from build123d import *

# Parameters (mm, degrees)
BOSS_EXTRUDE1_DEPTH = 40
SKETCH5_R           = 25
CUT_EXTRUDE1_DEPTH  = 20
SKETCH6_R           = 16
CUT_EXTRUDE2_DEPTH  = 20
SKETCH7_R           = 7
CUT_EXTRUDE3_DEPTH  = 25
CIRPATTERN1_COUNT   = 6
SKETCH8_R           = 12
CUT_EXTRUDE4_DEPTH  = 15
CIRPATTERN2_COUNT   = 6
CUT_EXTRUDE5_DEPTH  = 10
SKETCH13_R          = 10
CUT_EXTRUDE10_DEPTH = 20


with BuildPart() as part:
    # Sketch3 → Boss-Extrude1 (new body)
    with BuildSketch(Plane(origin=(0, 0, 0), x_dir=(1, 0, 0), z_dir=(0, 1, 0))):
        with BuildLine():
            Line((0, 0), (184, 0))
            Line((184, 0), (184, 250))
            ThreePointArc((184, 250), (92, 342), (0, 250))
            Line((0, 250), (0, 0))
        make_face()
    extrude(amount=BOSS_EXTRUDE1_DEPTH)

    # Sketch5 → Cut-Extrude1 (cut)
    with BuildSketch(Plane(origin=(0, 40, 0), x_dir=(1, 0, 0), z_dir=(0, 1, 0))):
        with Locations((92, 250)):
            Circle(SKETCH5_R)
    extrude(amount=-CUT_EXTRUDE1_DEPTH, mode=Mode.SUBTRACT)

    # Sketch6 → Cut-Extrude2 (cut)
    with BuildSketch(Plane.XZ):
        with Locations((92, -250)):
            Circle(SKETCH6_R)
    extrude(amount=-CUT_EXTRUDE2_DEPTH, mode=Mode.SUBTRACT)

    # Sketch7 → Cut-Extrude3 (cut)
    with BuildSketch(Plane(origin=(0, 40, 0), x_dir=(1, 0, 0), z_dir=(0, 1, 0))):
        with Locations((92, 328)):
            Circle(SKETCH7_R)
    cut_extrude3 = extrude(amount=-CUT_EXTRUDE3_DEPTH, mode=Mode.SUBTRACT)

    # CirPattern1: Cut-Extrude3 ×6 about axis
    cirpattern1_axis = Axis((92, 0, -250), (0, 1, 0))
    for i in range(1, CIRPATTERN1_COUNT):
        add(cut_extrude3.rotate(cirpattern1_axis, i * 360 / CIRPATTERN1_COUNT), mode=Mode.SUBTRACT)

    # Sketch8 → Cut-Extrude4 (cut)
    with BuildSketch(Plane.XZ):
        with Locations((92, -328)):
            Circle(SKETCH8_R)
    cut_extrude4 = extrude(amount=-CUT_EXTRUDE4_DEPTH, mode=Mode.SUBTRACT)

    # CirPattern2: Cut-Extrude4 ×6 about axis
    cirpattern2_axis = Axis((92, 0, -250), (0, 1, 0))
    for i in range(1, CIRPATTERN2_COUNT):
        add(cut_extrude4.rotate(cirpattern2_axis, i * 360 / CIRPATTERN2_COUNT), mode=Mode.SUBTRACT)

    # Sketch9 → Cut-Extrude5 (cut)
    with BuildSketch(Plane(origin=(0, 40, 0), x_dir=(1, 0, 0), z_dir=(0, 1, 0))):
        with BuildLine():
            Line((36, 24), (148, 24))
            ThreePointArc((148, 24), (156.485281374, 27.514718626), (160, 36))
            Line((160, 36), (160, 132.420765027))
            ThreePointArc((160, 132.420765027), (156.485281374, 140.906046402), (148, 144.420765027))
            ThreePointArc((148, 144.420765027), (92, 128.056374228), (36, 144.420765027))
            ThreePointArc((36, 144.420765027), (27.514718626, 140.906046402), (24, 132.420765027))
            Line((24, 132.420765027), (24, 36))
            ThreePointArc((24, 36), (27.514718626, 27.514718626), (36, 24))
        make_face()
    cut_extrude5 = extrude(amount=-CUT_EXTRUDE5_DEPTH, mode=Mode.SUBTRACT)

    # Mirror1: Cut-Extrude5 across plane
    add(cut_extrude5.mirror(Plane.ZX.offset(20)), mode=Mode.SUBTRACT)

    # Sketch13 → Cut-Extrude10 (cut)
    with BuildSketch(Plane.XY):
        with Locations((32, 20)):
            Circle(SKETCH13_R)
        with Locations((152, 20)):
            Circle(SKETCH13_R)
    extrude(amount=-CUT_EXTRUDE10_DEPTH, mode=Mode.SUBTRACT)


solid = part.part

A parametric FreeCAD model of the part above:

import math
import FreeCAD as App
import Part
import Sketcher
from FreeCAD import Vector
Q = App.Units.Quantity

doc = App.newDocument("Part")
body = doc.addObject("PartDesign::Body", "Body")

sketch1 = body.newObject("Sketcher::SketchObject", "Sketch")
sketch1.AttachmentSupport = (doc.getObject("XZ_Plane"), [""])
sketch1.MapMode = "FlatFace"
sketch1.addGeometry([
    Part.LineSegment(Vector(0, 0, 0), Vector(184, 0, 0)),
    Part.LineSegment(Vector(184, 0, 0), Vector(184, -250, 0)),
    Part.ArcOfCircle(Part.Circle(Vector(92, -250, 0), Vector(0, 0, 1), 92), math.radians(180), math.radians(360)),
    Part.LineSegment(Vector(0, -250, 0), Vector(0, 0, 0)),
], False)
sketch1.addConstraint([
    Sketcher.Constraint("Coincident", 0, 2, 1, 1),
    Sketcher.Constraint("Tangent", 1, 2, 2, 2),
    Sketcher.Constraint("Tangent", 2, 1, 3, 1),
    Sketcher.Constraint("Coincident", 3, 2, 0, 1),
    Sketcher.Constraint("Horizontal", 0),
    Sketcher.Constraint("Vertical", 1),
    Sketcher.Constraint("Vertical", 3),
    Sketcher.Constraint("Coincident", 3, 2, -1, 1),
    Sketcher.Constraint("Radius", 2, Q("92 mm")),
    Sketcher.Constraint("DistanceY", 1, 2, 1, 1, Q("250 mm")),
])
pad1 = body.newObject("PartDesign::Pad", "Pad")
pad1.Profile = sketch1
pad1.Length = 40
pad1.Reversed = True

sketch2 = body.newObject("Sketcher::SketchObject", "Sketch001")
sketch2.AttachmentSupport = (doc.getObject("XZ_Plane"), [""])
sketch2.MapMode = "FlatFace"
sketch2.AttachmentOffset = App.Placement(Vector(0, 0, -40), App.Rotation())
sketch2.addGeometry(Part.Circle(Vector(92, -250, 0), Vector(0, 0, 1), 25), False)
sketch2.addConstraint([
    Sketcher.Constraint("Diameter", 0, Q("50 mm")),
    Sketcher.Constraint("DistanceX", -1, 1, 0, 3, Q("92 mm")),
    Sketcher.Constraint("DistanceY", 0, 3, -1, 1, Q("250 mm")),
])
pocket1 = body.newObject("PartDesign::Pocket", "Pocket")
pocket1.Profile = sketch2
pocket1.Length = 20
pocket1.Reversed = True

sketch3 = body.newObject("Sketcher::SketchObject", "Sketch002")
sketch3.AttachmentSupport = (doc.getObject("XZ_Plane"), [""])
sketch3.MapMode = "FlatFace"
sketch3.addGeometry(Part.Circle(Vector(92, -250, 0), Vector(0, 0, 1), 16), False)
sketch3.addConstraint([
    Sketcher.Constraint("Diameter", 0, Q("32 mm")),
    Sketcher.Constraint("DistanceX", -1, 1, 0, 3, Q("92 mm")),
    Sketcher.Constraint("DistanceY", 0, 3, -1, 1, Q("250 mm")),
])
pocket2 = body.newObject("PartDesign::Pocket", "Pocket001")
pocket2.Profile = sketch3
pocket2.Length = 20

sketch4 = body.newObject("Sketcher::SketchObject", "Sketch003")
sketch4.AttachmentSupport = (doc.getObject("XZ_Plane"), [""])
sketch4.MapMode = "FlatFace"
sketch4.AttachmentOffset = App.Placement(Vector(0, 0, -40), App.Rotation())
sketch4.addGeometry(Part.Circle(Vector(92, -328, 0), Vector(0, 0, 1), 7), False)
sketch4.addConstraint([
    Sketcher.Constraint("Diameter", 0, Q("14 mm")),
    Sketcher.Constraint("DistanceX", -1, 1, 0, 3, Q("92 mm")),
    Sketcher.Constraint("DistanceY", 0, 3, -1, 1, Q("328 mm")),
])
pocket3 = body.newObject("PartDesign::Pocket", "Pocket002")
pocket3.Profile = sketch4
pocket3.Length = 25
pocket3.Reversed = True
doc.recompute()

datumline = body.newObject("PartDesign::Line", "DatumLine")
datumline.Placement = App.Placement(Vector(92, 0, -250), App.Rotation(Vector(0, 0, 1), Vector(0, 1, 0)))
polarpattern = body.newObject("PartDesign::PolarPattern", "PolarPattern")
polarpattern.Originals = [pocket3]
polarpattern.Axis = (datumline, [""])
polarpattern.Angle = 360
polarpattern.Occurrences = 6
body.Tip = polarpattern

sketch5 = body.newObject("Sketcher::SketchObject", "Sketch004")
sketch5.AttachmentSupport = (doc.getObject("XZ_Plane"), [""])
sketch5.MapMode = "FlatFace"
sketch5.addGeometry(Part.Circle(Vector(92, -328, 0), Vector(0, 0, 1), 12), False)
sketch5.addConstraint([
    Sketcher.Constraint("Diameter", 0, Q("24 mm")),
    Sketcher.Constraint("DistanceX", -1, 1, 0, 3, Q("92 mm")),
    Sketcher.Constraint("DistanceY", 0, 3, -1, 1, Q("328 mm")),
])
pocket4 = body.newObject("PartDesign::Pocket", "Pocket003")
pocket4.Profile = sketch5
pocket4.Length = 15
doc.recompute()

datumline2 = body.newObject("PartDesign::Line", "DatumLine001")
datumline2.Placement = App.Placement(Vector(92, 0, -250), App.Rotation(Vector(0, 0, 1), Vector(0, 1, 0)))
polarpattern2 = body.newObject("PartDesign::PolarPattern", "PolarPattern001")
polarpattern2.Originals = [pocket4]
polarpattern2.Axis = (datumline2, [""])
polarpattern2.Angle = 360
polarpattern2.Occurrences = 6
body.Tip = polarpattern2

sketch6 = body.newObject("Sketcher::SketchObject", "Sketch005")
sketch6.AttachmentSupport = (doc.getObject("XZ_Plane"), [""])
sketch6.MapMode = "FlatFace"
sketch6.AttachmentOffset = App.Placement(Vector(0, 0, -40), App.Rotation())
sketch6.addGeometry([
    Part.LineSegment(Vector(36, -24, 0), Vector(148, -24, 0)),
    Part.ArcOfCircle(Part.Circle(Vector(148, -36, 0), Vector(0, 0, 1), 12), math.radians(0), math.radians(90)),
    Part.LineSegment(Vector(160, -36, 0), Vector(160, -132, 0)),
    Part.ArcOfCircle(Part.Circle(Vector(148, -132, 0), Vector(0, 0, 1), 12), math.radians(-90), math.radians(0)),
    Part.ArcOfCircle(Part.Circle(Vector(92, -232, 0), Vector(0, 0, 1), 104), math.radians(57), math.radians(123)),
    Part.ArcOfCircle(Part.Circle(Vector(36, -132, 0), Vector(0, 0, 1), 12), math.radians(180), math.radians(270)),
    Part.LineSegment(Vector(24, -132, 0), Vector(24, -36, 0)),
    Part.ArcOfCircle(Part.Circle(Vector(36, -36, 0), Vector(0, 0, 1), 12), math.radians(90), math.radians(180)),
], False)
sketch6.addConstraint([
    Sketcher.Constraint("Tangent", 0, 2, 1, 2),
    Sketcher.Constraint("Tangent", 1, 1, 2, 1),
    Sketcher.Constraint("Tangent", 2, 2, 3, 2),
    Sketcher.Constraint("Coincident", 3, 1, 4, 1),
    Sketcher.Constraint("Coincident", 4, 2, 5, 2),
    Sketcher.Constraint("Tangent", 5, 1, 6, 1),
    Sketcher.Constraint("Tangent", 6, 2, 7, 2),
    Sketcher.Constraint("Tangent", 7, 1, 0, 1),
    Sketcher.Constraint("Horizontal", 0),
    Sketcher.Constraint("Vertical", 2),
    Sketcher.Constraint("Vertical", 6),
    Sketcher.Constraint("Equal", 1, 3),
    Sketcher.Constraint("Equal", 3, 5),
    Sketcher.Constraint("Equal", 5, 7),
    Sketcher.Constraint("Horizontal", 3, 3, 5, 3),
    Sketcher.Constraint("Vertical", 0, 2, 3, 1),
    Sketcher.Constraint("Vertical", 7, 3, 4, 2),
    Sketcher.Constraint("Radius", 1, Q("12 mm")),
    Sketcher.Constraint("Radius", 4, Q("104 mm")),
    Sketcher.Constraint("DistanceX", 0, 1, 0, 2, Q("112 mm")),
    Sketcher.Constraint("DistanceX", -1, 1, 1, 3, Q("148 mm")),
    Sketcher.Constraint("DistanceY", 1, 3, -1, 1, Q("36 mm")),
    Sketcher.Constraint("DistanceY", 2, 2, 2, 1, Q("96.420765 mm")),
])
pocket5 = body.newObject("PartDesign::Pocket", "Pocket004")
pocket5.Profile = sketch6
pocket5.Length = 10
pocket5.Reversed = True
doc.recompute()

datumplane = body.newObject("PartDesign::Plane", "DatumPlane")
datumplane.AttachmentSupport = (doc.getObject("XZ_Plane"), [""])
datumplane.MapMode = "FlatFace"
datumplane.AttachmentOffset = App.Placement(Vector(0, 0, -20), App.Rotation())
mirrored = body.newObject("PartDesign::Mirrored", "Mirrored")
mirrored.Originals = [pocket5]
mirrored.MirrorPlane = (datumplane, [""])
body.Tip = mirrored

sketch7 = body.newObject("Sketcher::SketchObject", "Sketch006")
sketch7.AttachmentSupport = (doc.getObject("XY_Plane"), [""])
sketch7.MapMode = "FlatFace"
sketch7.addGeometry([
    Part.Circle(Vector(32, 20, 0), Vector(0, 0, 1), 10),
    Part.Circle(Vector(152, 20, 0), Vector(0, 0, 1), 10),
], False)
sketch7.addConstraint([
    Sketcher.Constraint("Equal", 0, 1),
    Sketcher.Constraint("Horizontal", 0, 3, 1, 3),
    Sketcher.Constraint("Diameter", 0, Q("20 mm")),
    Sketcher.Constraint("DistanceX", -1, 1, 0, 3, Q("32 mm")),
    Sketcher.Constraint("DistanceY", -1, 1, 0, 3, Q("20 mm")),
    Sketcher.Constraint("DistanceX", -1, 1, 1, 3, Q("152 mm")),
])
pocket6 = body.newObject("PartDesign::Pocket", "Pocket005")
pocket6.Profile = sketch7
pocket6.Length = 20

doc.recompute()
